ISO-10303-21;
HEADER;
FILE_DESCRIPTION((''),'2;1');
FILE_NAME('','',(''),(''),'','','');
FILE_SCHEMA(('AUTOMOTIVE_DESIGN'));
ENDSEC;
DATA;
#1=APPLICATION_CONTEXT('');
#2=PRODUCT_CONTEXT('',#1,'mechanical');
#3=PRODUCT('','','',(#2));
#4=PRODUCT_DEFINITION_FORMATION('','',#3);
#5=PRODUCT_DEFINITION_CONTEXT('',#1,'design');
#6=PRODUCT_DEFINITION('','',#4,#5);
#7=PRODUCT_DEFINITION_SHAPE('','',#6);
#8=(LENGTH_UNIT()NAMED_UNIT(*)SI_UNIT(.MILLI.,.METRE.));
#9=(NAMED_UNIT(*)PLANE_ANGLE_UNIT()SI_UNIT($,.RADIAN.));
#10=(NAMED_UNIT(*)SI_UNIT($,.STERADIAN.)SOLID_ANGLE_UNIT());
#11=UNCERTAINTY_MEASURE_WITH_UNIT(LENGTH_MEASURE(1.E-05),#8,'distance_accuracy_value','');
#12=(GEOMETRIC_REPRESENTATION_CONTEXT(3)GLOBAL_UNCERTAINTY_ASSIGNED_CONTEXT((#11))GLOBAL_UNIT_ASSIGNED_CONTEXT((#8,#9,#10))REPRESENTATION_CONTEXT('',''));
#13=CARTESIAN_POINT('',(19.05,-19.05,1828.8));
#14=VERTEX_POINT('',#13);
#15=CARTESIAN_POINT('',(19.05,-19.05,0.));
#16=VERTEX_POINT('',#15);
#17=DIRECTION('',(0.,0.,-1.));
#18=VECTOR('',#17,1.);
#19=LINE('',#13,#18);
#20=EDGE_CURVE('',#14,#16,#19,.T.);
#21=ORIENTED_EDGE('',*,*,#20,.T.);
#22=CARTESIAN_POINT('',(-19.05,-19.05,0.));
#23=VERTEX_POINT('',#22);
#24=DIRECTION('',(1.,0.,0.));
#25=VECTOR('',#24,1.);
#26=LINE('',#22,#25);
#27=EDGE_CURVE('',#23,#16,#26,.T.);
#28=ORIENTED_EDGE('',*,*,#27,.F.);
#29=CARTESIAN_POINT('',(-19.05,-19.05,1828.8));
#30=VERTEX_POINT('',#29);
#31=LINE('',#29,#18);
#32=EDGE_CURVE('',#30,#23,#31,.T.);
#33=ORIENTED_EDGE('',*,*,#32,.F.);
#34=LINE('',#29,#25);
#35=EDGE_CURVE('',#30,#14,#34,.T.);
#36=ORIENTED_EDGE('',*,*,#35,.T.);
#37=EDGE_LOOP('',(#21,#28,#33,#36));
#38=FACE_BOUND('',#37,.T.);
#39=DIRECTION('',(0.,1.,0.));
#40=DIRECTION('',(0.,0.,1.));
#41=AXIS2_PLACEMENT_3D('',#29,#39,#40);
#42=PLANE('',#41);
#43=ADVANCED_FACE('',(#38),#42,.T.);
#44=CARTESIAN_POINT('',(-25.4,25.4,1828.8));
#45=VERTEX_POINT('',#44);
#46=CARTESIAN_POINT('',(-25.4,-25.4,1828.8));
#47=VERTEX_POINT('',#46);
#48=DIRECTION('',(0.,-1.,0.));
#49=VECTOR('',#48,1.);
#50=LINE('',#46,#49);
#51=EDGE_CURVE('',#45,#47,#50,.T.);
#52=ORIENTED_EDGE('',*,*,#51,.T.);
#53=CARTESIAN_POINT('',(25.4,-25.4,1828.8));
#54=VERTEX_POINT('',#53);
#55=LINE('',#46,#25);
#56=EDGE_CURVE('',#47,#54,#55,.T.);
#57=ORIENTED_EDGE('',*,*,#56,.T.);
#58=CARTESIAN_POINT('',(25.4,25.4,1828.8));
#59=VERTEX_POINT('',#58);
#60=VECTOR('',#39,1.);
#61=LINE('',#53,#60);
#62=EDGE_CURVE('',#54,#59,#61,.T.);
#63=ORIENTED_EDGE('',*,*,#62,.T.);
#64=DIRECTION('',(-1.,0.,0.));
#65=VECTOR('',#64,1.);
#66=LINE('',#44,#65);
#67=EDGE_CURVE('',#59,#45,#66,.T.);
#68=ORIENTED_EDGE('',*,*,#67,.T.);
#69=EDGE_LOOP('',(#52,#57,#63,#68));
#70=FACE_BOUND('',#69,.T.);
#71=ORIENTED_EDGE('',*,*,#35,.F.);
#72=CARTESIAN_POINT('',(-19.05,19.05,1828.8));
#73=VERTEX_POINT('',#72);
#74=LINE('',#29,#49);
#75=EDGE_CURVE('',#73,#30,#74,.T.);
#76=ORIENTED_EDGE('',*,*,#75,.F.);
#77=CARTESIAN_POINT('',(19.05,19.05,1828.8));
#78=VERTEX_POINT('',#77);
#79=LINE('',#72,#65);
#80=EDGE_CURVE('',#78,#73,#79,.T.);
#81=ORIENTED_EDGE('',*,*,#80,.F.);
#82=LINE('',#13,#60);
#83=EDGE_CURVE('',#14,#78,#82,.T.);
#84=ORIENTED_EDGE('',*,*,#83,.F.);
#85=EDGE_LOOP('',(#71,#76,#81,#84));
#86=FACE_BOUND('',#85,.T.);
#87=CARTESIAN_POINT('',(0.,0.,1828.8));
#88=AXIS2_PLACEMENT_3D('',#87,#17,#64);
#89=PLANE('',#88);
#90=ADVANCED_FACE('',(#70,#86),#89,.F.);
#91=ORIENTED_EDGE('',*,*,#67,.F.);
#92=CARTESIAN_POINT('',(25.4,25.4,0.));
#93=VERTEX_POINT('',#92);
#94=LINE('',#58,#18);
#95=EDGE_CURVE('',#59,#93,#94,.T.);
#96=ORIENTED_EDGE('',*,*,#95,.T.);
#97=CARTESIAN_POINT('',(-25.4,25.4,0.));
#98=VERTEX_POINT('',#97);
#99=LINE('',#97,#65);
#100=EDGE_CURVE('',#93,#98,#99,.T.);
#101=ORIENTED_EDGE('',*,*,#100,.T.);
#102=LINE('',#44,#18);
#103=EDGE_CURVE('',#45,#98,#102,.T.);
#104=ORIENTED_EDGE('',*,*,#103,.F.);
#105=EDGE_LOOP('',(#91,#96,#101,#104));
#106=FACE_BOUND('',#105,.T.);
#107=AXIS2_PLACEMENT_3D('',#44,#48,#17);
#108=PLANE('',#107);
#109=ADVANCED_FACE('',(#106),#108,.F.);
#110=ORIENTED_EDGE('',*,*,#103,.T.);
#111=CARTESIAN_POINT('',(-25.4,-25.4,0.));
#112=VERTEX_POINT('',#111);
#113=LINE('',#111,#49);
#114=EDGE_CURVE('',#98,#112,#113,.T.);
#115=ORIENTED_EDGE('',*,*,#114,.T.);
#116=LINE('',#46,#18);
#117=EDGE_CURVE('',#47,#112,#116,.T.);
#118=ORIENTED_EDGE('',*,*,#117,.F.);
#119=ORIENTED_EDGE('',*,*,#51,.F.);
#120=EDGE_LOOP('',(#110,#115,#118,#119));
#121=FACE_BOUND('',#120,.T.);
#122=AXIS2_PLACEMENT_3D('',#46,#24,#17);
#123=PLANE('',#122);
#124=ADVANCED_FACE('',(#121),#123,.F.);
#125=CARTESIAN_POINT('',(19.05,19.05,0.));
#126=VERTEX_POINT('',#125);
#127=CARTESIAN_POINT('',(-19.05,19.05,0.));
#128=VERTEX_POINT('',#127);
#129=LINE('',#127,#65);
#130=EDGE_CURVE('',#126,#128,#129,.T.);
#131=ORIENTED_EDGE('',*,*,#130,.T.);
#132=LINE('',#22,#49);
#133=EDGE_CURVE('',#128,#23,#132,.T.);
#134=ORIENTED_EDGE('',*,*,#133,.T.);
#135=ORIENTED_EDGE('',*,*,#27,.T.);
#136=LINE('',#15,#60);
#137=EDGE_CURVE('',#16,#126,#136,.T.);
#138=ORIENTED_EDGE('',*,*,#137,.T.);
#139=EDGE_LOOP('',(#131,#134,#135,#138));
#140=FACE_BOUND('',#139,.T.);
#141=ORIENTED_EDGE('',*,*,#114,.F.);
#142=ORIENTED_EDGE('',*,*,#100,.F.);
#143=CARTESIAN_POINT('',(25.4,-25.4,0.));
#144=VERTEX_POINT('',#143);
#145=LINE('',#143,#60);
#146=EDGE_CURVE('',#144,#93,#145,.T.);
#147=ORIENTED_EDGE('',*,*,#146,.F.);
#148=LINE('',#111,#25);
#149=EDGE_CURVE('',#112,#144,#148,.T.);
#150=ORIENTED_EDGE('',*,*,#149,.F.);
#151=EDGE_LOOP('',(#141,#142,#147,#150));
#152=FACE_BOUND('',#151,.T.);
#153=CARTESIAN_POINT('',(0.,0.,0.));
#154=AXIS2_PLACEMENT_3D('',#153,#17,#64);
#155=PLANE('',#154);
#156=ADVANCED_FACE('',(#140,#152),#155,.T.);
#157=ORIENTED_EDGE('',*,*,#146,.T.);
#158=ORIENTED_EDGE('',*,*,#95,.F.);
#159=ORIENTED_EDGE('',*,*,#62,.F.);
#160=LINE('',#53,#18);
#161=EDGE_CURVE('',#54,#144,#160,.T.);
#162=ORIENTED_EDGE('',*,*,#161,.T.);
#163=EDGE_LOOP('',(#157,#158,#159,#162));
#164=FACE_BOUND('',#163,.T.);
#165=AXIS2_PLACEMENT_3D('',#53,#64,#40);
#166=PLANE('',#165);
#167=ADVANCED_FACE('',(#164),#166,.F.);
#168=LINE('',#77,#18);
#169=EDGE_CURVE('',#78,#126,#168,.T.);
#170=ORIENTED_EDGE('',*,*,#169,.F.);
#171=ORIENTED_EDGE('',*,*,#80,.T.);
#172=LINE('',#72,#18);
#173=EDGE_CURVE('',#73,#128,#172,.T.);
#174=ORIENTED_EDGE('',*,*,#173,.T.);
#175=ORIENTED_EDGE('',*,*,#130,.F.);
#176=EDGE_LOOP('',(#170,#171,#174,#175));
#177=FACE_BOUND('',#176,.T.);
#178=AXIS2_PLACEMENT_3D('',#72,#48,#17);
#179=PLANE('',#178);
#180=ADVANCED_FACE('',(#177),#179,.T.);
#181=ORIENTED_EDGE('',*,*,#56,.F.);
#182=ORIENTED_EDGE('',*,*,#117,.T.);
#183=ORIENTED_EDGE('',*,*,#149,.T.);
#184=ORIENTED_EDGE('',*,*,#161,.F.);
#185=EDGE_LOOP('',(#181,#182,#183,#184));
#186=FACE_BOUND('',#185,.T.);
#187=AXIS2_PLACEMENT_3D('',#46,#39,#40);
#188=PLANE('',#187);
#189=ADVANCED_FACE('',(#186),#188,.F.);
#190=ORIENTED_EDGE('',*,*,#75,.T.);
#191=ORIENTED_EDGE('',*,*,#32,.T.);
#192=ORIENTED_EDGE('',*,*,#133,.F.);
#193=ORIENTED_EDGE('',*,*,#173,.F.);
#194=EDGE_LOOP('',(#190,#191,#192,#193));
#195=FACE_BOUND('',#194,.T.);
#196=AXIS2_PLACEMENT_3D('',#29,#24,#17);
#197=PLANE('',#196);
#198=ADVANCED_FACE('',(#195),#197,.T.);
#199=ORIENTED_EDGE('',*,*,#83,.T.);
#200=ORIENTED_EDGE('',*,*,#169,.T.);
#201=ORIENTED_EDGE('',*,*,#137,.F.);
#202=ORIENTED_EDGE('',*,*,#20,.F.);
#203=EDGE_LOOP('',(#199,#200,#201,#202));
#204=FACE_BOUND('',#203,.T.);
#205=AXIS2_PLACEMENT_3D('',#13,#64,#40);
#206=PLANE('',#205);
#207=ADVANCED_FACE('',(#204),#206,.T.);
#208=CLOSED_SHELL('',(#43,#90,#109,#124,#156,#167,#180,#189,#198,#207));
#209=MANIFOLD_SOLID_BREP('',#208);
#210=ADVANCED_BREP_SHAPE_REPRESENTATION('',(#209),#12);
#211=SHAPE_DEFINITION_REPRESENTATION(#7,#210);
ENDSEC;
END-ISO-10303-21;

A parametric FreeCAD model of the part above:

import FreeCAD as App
import Part
import Sketcher
Q = App.Units.Quantity


def add_polygon(sketch, points):
    """Adds a closed chain of lines whose ends are joined by coincident constraints."""
    first, n = sketch.GeometryCount, len(points)
    for a, b in zip(points, points[1:] + points[:1]):
        sketch.addGeometry(Part.LineSegment(App.Vector(*a, 0), App.Vector(*b, 0)), False)
    for i in range(n):
        sketch.addConstraint(Sketcher.Constraint("Coincident", first + i, 2, first + (i + 1) % n, 1))

doc = App.newDocument("Part")
body = doc.addObject("PartDesign::Body", "Body")

sketch1 = doc.addObject("Sketcher::SketchObject", "Sketch")
body.addObject(sketch1)
sketch1.AttachmentSupport = (doc.XY_Plane, [""])
sketch1.MapMode = "FlatFace"
add_polygon(sketch1, [(-25.4, 25.4), (-25.4, -25.4), (25.4, -25.4), (25.4, 25.4)])
add_polygon(sketch1, [(19.05, -19.05), (-19.05, -19.05), (-19.05, 19.05), (19.05, 19.05)])
sketch1.addConstraint([
    Sketcher.Constraint("Vertical", 0),
    Sketcher.Constraint("Horizontal", 1),
    Sketcher.Constraint("Vertical", 2),
    Sketcher.Constraint("Horizontal", 3),
    Sketcher.Constraint("Horizontal", 4),
    Sketcher.Constraint("Vertical", 5),
    Sketcher.Constraint("Horizontal", 6),
    Sketcher.Constraint("Vertical", 7),
    Sketcher.Constraint("Symmetric", 0, 2, 2, 2, -1, 1),
    Sketcher.Constraint("Symmetric", 4, 2, 6, 2, -1, 1),
    Sketcher.Constraint("Equal", 3, 0),
    Sketcher.Constraint("Equal", 6, 5),
    Sketcher.Constraint("DistanceX", 1, 1, 1, 2, Q("2 in")),
    Sketcher.Constraint("DistanceX", 4, 2, 4, 1, Q("1.5 in")),
])
pad1 = doc.addObject("PartDesign::Pad", "Pad")
body.addObject(pad1)
pad1.Profile = sketch1
pad1.Length = Q("72 in")

doc.recompute()
